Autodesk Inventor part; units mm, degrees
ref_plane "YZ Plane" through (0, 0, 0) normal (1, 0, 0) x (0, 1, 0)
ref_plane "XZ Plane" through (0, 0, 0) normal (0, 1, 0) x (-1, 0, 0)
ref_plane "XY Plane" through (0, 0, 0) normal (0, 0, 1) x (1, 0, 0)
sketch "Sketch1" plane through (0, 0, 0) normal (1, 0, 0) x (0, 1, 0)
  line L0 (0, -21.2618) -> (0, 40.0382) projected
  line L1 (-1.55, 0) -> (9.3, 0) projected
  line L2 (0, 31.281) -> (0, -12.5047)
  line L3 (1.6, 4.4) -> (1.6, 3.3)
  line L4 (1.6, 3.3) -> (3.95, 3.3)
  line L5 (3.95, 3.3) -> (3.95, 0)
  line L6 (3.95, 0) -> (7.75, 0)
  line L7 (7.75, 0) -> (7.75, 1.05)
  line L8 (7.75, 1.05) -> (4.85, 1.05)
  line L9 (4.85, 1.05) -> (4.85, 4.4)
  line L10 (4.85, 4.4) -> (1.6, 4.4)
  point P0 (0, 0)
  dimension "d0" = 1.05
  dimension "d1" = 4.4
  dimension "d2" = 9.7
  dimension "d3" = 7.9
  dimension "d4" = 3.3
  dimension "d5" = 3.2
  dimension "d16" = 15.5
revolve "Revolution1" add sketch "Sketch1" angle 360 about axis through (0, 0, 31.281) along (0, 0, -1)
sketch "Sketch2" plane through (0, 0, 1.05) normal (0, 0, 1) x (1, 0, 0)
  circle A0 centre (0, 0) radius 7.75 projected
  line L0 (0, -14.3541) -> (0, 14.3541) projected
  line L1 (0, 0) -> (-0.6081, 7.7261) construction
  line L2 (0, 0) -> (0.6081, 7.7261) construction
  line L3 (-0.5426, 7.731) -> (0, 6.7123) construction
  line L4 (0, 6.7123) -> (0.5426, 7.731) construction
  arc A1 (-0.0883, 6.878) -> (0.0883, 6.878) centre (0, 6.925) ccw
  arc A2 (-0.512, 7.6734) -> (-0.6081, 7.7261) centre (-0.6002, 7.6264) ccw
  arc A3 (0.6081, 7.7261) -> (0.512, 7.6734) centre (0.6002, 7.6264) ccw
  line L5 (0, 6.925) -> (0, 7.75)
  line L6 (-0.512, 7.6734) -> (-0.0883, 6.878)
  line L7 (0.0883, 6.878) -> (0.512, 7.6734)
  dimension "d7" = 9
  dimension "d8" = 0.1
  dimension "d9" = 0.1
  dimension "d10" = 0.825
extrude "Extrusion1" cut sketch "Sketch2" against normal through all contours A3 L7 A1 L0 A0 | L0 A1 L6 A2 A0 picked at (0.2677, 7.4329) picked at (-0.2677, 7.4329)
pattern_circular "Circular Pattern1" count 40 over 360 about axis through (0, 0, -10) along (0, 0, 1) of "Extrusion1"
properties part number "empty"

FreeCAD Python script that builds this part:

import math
import FreeCAD as App
import Part
import Sketcher
Q = App.Units.Quantity


def add_polygon(sketch, points):
    """Adds a closed chain of lines whose ends are joined by coincident constraints."""
    first, n = sketch.GeometryCount, len(points)
    for a, b in zip(points, points[1:] + points[:1]):
        sketch.addGeometry(Part.LineSegment(App.Vector(*a, 0), App.Vector(*b, 0)), False)
    for i in range(n):
        sketch.addConstraint(Sketcher.Constraint("Coincident", first + i, 2, first + (i + 1) % n, 1))

doc = App.newDocument("Part")
body = doc.addObject("PartDesign::Body", "Body")

sketch1 = body.newObject("Sketcher::SketchObject", "Sketch")
sketch1.AttachmentSupport = (doc.getObject("YZ_Plane"), [""])
sketch1.MapMode = "FlatFace"
add_polygon(sketch1, [(4, 3.3), (4, 0), (7.8, 0), (7.8, 1.1), (4.8, 1.1), (4.8, 4.4), (1.6, 4.4), (1.6, 3.3)])
sketch1.addConstraint(Sketcher.Constraint("Vertical", 0))
sketch1.addConstraint(Sketcher.Constraint("Horizontal", 1))
sketch1.addConstraint(Sketcher.Constraint("Vertical", 2))
sketch1.addConstraint(Sketcher.Constraint("Horizontal", 3))
sketch1.addConstraint(Sketcher.Constraint("Vertical", 4))
sketch1.addConstraint(Sketcher.Constraint("Horizontal", 5))
sketch1.addConstraint(Sketcher.Constraint("Vertical", 6))
sketch1.addConstraint(Sketcher.Constraint("Horizontal", 7))
sketch1.addConstraint(Sketcher.Constraint("PointOnObject", 0, 2, -1))
sketch1.addConstraint(Sketcher.Constraint("DistanceY", 0, 2, 0, 1, Q("3.3 mm")))
sketch1.addConstraint(Sketcher.Constraint("DistanceY", 2, 1, 2, 2, Q("1.05 mm")))
sketch1.addConstraint(Sketcher.Constraint("DistanceY", -1, 1, 4, 2, Q("4.4 mm")))
sketch1.addConstraint(Sketcher.Constraint("DistanceX", 1, 1, 1, 2, Q("3.8 mm")))
sketch1.addConstraint(Sketcher.Constraint("DistanceX", 3, 2, 3, 1, Q("2.9 mm")))
sketch1.addConstraint(Sketcher.Constraint("DistanceX", 5, 2, 5, 1, Q("3.25 mm")))
sketch1.addConstraint(Sketcher.Constraint("DistanceX", -1, 1, 5, 2, Q("1.6 mm")))
revolution = body.newObject("PartDesign::Revolution", "Revolution")
revolution.Profile = sketch1
revolution.ReferenceAxis = (sketch1, ["V_Axis"])
revolution.Angle = 360

sketch2 = body.newObject("Sketcher::SketchObject", "Sketch001")
sketch2.AttachmentSupport = (doc.getObject("XY_Plane"), [""])
sketch2.MapMode = "FlatFace"
sketch2.AttachmentOffset = App.Placement(App.Vector(0, 0, 1.05), App.Rotation())
sketch2.addGeometry(Part.ArcOfCircle(Part.Circle(App.Vector(0.6, 7.63, 0), App.Vector(0, 0, 1), 0.1), math.radians(85), math.radians(152)), False)
sketch2.addGeometry(Part.ArcOfCircle(Part.Circle(App.Vector(0, 0, 0), App.Vector(0, 0, 1), 7.75), math.radians(85.5), math.radians(94.5)), False)
sketch2.addGeometry(Part.ArcOfCircle(Part.Circle(App.Vector(-0.6, 7.63, 0), App.Vector(0, 0, 1), 0.1), math.radians(28), math.radians(95)), False)
sketch2.addGeometry(Part.LineSegment(App.Vector(-0.51, 7.67, 0), App.Vector(-0.09, 6.88, 0)), False)
sketch2.addGeometry(Part.ArcOfCircle(Part.Circle(App.Vector(0, 6.92, 0), App.Vector(0, 0, 1), 0.1), math.radians(-152), math.radians(-28)), False)
sketch2.addGeometry(Part.LineSegment(App.Vector(0.09, 6.88, 0), App.Vector(0.51, 7.67, 0)), False)
sketch2.addConstraint(Sketcher.Constraint("Coincident", 0, 1, 1, 1))
sketch2.addConstraint(Sketcher.Constraint("Coincident", 1, 2, 2, 2))
sketch2.addConstraint(Sketcher.Constraint("Tangent", 2, 1, 3, 1))
sketch2.addConstraint(Sketcher.Constraint("Tangent", 3, 2, 4, 1))
sketch2.addConstraint(Sketcher.Constraint("Tangent", 4, 2, 5, 1))
sketch2.addConstraint(Sketcher.Constraint("Tangent", 5, 2, 0, 2))
sketch2.addConstraint(Sketcher.Constraint("Coincident", 1, 3, -1, 1))
sketch2.addConstraint(Sketcher.Constraint("Equal", 0, 2))
sketch2.addConstraint(Sketcher.Constraint("Equal", 2, 4))
sketch2.addConstraint(Sketcher.Constraint("Symmetric", 3, 2, 4, 2, -2))
sketch2.addConstraint(Sketcher.Constraint("Horizontal", 0, 1, 1, 2))
sketch2.addConstraint(Sketcher.Constraint("Radius", 0, Q("0.1 mm")))
sketch2.addConstraint(Sketcher.Constraint("Radius", 1, Q("7.75 mm")))
sketch2.addConstraint(Sketcher.Constraint("DistanceY", 0, 3, 0, 1, Q("0.0997 mm")))
sketch2.addConstraint(Sketcher.Constraint("DistanceX", 2, 1, 0, 1, Q("1.12 mm")))
sketch2.addConstraint(Sketcher.Constraint("DistanceY", -1, 1, 4, 3, Q("6.925 mm")))
pocket1 = body.newObject("PartDesign::Pocket", "Pocket")
pocket1.Profile = sketch2
pocket1.Type = "ThroughAll"
doc.recompute()

polarpattern = body.newObject("PartDesign::PolarPattern", "PolarPattern")
polarpattern.Originals = [pocket1]
polarpattern.Axis = (doc.getObject("Z_Axis"), [""])
polarpattern.Angle = 360
polarpattern.Occurrences = 40
body.Tip = polarpattern

doc.recompute()
